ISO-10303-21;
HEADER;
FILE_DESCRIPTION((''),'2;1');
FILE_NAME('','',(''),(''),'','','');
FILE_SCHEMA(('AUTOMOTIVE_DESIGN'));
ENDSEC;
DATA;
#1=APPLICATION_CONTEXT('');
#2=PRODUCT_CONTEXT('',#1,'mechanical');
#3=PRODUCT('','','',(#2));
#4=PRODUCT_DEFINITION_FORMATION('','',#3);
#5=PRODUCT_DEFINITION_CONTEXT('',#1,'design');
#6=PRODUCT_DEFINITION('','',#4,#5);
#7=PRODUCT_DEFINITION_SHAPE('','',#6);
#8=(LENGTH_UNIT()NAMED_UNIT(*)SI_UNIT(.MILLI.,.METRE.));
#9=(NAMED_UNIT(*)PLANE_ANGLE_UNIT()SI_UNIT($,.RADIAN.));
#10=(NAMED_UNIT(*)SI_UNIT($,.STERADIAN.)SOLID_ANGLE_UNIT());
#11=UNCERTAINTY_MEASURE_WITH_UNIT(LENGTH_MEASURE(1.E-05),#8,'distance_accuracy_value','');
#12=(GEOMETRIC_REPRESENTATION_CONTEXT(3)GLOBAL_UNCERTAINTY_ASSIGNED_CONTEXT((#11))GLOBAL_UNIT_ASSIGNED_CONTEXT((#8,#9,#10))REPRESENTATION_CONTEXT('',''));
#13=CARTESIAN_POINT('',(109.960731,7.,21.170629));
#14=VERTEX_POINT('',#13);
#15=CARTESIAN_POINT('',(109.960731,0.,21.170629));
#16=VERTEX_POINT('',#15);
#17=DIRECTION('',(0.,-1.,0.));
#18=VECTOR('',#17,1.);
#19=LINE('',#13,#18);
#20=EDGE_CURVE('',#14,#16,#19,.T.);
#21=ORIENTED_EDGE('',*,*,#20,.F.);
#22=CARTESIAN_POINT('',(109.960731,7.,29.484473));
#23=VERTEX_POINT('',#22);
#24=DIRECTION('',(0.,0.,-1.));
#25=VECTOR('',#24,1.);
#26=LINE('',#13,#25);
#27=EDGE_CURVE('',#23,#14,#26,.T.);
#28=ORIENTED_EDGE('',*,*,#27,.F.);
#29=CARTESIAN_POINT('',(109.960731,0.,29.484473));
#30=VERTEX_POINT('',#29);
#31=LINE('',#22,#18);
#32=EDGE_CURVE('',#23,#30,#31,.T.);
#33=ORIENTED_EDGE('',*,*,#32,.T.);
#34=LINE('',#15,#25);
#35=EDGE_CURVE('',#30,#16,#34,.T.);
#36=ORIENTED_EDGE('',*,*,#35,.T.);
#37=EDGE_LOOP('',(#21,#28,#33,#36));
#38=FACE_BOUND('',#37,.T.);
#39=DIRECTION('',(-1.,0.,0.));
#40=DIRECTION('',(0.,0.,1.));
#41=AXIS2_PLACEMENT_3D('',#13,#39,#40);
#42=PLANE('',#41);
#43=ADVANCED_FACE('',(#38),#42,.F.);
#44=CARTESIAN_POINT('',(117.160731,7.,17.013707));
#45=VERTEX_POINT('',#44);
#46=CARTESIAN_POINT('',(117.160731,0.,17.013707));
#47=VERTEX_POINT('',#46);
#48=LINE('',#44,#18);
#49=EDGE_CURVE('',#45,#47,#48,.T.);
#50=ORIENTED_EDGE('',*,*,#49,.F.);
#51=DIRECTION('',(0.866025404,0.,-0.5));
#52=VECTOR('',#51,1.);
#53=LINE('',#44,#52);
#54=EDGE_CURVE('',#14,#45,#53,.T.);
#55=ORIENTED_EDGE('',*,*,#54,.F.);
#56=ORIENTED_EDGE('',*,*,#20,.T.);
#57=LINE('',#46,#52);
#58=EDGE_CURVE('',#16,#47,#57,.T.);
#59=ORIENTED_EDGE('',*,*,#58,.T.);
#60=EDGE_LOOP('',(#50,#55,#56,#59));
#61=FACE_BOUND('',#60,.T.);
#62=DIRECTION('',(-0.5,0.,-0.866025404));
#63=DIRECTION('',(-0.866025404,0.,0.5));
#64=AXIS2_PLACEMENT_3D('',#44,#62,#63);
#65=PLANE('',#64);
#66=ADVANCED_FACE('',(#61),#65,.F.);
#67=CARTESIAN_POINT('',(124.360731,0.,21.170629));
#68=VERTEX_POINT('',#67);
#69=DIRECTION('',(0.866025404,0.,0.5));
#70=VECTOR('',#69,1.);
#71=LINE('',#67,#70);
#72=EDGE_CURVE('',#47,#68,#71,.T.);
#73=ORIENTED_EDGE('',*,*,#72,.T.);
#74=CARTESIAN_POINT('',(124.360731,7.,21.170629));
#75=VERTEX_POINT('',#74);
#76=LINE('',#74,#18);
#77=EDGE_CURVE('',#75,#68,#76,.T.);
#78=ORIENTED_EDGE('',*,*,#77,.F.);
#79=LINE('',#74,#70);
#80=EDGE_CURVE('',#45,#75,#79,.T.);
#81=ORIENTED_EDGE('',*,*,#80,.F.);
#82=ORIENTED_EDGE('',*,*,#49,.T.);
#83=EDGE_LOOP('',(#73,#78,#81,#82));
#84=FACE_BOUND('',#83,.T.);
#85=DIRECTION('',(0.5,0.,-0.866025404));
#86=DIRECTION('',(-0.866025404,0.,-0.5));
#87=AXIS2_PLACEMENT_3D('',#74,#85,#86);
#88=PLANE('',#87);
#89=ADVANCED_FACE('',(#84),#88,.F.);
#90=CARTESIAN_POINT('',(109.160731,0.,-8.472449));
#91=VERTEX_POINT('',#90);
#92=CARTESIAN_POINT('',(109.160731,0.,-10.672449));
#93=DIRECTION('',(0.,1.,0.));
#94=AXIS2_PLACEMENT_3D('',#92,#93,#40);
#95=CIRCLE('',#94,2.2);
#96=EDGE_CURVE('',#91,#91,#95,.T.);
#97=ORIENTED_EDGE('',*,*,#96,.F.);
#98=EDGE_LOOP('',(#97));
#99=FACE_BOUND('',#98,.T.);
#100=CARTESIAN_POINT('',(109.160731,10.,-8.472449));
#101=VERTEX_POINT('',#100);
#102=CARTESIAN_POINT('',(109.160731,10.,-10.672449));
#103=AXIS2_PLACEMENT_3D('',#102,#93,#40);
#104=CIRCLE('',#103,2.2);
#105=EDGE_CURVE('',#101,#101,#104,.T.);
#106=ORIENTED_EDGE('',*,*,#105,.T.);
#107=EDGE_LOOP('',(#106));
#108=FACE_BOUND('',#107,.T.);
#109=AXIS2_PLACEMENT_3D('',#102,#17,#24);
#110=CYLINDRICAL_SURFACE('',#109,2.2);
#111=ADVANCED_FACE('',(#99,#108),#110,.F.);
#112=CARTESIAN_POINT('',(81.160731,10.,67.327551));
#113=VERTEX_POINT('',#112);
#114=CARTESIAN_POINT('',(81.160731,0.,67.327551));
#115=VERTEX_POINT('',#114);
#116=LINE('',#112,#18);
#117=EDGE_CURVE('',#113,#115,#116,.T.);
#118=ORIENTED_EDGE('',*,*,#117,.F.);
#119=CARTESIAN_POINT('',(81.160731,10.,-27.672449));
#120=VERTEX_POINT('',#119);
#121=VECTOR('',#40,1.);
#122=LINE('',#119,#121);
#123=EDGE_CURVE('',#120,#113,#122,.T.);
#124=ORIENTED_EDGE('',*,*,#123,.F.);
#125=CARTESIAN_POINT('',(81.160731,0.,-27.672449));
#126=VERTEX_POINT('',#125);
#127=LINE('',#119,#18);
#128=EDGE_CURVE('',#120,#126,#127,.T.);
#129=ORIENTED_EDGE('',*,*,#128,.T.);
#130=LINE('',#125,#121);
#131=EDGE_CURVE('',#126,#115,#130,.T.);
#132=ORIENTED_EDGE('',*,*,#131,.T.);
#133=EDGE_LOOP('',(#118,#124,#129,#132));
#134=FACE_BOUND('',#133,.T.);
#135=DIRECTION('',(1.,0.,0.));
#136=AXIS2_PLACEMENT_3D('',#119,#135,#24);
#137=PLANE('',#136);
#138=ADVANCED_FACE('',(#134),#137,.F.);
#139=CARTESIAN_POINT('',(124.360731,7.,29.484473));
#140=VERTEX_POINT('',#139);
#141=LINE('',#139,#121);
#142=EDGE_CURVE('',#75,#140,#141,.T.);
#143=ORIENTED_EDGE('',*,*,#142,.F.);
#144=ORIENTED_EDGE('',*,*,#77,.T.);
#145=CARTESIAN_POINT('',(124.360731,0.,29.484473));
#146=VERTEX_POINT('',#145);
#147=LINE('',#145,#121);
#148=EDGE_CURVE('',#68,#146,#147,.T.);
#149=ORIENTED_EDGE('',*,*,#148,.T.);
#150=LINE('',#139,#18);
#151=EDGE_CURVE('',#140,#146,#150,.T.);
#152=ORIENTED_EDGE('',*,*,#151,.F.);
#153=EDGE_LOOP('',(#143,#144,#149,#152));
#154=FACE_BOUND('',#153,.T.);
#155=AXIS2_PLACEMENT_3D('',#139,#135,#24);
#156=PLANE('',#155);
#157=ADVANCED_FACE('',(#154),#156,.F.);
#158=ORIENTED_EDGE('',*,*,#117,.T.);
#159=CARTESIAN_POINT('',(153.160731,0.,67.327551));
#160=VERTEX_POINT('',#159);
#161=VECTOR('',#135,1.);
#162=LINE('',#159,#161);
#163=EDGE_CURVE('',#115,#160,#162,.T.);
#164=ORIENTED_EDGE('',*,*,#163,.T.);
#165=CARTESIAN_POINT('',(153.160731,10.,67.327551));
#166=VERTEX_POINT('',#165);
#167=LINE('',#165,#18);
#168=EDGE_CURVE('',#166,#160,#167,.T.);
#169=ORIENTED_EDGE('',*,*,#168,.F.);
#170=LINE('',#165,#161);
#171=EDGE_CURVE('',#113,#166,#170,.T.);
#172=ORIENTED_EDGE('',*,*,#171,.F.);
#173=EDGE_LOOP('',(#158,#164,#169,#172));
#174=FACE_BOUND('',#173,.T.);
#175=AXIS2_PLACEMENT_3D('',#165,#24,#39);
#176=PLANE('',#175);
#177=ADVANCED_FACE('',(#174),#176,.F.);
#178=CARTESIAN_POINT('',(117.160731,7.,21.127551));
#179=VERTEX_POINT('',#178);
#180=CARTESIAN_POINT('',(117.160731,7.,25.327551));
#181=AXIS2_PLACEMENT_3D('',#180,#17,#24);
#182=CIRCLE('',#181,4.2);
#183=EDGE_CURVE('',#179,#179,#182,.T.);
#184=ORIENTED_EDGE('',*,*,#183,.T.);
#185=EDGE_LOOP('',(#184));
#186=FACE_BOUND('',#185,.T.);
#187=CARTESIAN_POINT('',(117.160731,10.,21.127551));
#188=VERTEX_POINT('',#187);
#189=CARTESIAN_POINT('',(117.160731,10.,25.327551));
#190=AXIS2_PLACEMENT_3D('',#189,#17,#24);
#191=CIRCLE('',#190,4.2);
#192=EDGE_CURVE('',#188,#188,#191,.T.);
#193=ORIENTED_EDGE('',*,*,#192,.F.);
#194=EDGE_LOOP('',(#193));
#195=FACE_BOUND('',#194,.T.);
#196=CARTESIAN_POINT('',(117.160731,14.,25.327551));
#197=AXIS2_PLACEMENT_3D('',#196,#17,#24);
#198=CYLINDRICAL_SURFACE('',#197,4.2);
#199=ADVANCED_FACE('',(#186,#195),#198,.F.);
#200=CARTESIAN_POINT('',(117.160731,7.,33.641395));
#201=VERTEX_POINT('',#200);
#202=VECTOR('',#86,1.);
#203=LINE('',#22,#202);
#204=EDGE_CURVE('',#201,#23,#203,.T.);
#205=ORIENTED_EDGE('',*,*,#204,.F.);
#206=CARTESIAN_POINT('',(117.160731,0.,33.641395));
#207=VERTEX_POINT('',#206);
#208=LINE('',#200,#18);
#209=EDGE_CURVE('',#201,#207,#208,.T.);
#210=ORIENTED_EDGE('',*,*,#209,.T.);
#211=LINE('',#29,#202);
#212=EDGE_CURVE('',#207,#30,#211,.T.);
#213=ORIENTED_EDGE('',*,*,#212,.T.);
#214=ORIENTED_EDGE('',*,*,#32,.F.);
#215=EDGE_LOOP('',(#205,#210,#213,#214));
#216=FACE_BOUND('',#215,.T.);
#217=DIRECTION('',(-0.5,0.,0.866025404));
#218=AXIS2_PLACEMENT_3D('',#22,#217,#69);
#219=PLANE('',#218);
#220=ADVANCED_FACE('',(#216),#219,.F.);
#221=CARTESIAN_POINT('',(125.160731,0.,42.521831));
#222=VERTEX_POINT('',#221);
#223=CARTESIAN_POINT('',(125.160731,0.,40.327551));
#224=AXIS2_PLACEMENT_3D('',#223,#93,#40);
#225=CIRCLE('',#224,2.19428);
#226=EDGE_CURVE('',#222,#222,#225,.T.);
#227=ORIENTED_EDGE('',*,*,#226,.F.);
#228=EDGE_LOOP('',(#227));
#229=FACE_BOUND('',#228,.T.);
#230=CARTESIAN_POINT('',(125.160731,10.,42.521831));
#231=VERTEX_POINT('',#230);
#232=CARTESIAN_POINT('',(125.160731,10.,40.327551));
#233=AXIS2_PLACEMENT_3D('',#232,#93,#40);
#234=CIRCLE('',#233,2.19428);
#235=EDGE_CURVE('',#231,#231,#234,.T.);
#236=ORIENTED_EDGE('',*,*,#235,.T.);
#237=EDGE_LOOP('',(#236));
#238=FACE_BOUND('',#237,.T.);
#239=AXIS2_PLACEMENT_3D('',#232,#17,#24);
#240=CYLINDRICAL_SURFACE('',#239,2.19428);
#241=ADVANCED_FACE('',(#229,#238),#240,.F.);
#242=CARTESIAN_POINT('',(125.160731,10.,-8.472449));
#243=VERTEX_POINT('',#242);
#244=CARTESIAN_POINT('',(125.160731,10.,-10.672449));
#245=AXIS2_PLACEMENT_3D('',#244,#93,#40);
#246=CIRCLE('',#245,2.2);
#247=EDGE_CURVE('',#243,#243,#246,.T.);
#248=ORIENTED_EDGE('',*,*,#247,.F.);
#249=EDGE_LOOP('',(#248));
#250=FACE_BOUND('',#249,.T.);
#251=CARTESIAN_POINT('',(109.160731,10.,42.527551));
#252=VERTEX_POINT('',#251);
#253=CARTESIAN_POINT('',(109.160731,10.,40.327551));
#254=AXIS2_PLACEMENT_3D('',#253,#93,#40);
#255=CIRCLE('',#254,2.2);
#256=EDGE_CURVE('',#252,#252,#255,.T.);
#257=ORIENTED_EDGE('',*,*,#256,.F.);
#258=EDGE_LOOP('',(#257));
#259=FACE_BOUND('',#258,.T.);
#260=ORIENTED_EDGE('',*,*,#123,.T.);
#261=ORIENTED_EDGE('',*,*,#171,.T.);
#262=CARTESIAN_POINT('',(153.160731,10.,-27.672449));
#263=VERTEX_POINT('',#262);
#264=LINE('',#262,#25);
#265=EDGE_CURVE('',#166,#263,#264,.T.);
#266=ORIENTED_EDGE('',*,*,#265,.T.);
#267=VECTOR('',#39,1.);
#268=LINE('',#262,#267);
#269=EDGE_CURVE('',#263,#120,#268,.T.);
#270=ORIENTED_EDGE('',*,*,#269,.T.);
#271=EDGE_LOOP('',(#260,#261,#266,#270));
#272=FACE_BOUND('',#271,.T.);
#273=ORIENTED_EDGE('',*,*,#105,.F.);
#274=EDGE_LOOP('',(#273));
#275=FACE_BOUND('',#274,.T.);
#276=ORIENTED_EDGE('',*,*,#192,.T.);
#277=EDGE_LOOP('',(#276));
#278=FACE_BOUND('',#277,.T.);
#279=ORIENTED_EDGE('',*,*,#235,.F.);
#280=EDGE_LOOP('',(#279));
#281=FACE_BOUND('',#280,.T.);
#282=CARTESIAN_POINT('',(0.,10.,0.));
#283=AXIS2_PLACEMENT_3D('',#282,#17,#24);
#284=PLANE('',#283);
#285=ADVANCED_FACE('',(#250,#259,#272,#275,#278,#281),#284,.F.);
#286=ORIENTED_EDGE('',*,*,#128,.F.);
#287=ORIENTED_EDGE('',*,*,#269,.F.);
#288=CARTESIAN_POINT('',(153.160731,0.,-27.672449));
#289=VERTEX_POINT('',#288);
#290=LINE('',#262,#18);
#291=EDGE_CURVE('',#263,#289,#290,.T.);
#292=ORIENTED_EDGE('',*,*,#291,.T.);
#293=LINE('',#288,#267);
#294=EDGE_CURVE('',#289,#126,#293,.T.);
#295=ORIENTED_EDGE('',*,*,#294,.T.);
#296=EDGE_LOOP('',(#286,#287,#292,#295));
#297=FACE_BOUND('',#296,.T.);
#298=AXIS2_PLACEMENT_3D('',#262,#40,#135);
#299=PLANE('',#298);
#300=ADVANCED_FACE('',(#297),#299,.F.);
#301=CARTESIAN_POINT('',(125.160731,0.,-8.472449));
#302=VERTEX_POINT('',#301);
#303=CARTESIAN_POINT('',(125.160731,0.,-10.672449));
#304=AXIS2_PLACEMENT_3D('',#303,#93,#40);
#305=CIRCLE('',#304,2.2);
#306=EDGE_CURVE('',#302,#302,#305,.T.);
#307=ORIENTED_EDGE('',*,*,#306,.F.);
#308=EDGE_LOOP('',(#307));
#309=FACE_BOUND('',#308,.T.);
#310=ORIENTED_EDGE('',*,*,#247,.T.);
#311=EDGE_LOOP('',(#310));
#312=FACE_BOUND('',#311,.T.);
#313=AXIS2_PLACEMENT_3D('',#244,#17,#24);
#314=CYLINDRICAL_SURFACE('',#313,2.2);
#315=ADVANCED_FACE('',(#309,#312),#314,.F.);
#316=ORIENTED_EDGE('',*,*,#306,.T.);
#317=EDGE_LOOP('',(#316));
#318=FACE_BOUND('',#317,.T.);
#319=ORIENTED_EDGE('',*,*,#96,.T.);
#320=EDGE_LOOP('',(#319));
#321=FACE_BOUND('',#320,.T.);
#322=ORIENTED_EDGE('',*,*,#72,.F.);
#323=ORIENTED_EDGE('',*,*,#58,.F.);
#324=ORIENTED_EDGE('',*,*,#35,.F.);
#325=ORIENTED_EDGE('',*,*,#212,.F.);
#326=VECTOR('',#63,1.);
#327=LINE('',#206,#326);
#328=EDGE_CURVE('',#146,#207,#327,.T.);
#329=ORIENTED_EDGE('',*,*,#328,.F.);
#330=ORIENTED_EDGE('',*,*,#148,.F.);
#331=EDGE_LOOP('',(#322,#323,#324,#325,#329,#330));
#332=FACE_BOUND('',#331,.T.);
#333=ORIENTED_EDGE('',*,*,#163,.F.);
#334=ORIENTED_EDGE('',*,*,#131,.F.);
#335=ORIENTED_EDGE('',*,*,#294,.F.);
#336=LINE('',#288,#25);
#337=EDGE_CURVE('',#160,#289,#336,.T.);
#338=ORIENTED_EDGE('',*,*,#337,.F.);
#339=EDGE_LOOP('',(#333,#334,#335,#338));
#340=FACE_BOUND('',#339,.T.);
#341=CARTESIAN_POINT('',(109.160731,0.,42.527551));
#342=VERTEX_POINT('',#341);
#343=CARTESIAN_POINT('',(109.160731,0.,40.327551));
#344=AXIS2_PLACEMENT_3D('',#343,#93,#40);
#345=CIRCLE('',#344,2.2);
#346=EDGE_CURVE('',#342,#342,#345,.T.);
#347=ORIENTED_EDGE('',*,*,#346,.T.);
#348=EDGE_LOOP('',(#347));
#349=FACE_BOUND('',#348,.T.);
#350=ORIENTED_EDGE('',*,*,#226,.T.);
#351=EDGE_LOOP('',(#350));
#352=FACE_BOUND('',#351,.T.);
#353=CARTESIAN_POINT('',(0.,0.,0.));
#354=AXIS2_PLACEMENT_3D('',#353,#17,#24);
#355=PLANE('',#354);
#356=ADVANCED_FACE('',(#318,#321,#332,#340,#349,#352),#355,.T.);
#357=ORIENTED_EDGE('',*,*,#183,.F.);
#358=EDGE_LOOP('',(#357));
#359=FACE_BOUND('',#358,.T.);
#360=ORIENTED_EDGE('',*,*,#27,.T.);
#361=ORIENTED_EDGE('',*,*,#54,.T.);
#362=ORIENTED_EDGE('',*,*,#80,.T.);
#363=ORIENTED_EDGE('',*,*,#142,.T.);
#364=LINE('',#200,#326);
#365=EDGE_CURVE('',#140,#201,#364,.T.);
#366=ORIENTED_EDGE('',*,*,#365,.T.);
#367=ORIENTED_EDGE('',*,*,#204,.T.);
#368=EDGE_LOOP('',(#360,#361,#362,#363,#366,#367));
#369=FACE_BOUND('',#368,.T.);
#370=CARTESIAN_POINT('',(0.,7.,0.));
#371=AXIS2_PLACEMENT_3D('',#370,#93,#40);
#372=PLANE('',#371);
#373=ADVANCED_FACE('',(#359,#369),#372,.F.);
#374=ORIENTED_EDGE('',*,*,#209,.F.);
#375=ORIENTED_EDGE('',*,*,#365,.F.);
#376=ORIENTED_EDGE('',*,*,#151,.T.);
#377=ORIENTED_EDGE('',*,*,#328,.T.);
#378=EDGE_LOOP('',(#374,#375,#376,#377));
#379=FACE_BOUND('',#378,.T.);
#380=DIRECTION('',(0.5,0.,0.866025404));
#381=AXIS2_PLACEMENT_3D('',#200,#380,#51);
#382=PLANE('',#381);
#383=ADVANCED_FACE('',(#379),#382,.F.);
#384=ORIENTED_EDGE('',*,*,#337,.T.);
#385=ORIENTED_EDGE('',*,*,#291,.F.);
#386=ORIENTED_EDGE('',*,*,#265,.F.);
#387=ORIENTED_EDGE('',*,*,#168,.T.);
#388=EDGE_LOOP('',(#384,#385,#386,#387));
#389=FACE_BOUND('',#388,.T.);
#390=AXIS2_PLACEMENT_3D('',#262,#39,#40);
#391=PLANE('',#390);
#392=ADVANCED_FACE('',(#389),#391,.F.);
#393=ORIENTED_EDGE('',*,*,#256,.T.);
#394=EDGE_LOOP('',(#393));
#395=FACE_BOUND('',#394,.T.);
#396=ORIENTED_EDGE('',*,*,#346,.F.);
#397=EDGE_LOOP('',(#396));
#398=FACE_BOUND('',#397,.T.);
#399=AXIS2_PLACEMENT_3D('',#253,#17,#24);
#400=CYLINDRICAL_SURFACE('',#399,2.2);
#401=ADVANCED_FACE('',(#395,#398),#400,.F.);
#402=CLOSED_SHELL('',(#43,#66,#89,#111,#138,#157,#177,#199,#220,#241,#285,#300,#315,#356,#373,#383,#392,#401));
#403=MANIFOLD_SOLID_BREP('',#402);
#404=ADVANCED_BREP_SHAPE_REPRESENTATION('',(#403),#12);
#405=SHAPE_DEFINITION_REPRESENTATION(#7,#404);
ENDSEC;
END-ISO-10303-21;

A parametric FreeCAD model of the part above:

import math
import FreeCAD as App
import Part
import Sketcher
from FreeCAD import Vector
Q = App.Units.Quantity


def add_polygon(sketch, points):
    """Adds a closed chain of lines whose ends are joined by coincident constraints."""
    first, n = sketch.GeometryCount, len(points)
    for a, b in zip(points, points[1:] + points[:1]):
        sketch.addGeometry(Part.LineSegment(App.Vector(*a, 0), App.Vector(*b, 0)), False)
    for i in range(n):
        sketch.addConstraint(Sketcher.Constraint("Coincident", first + i, 2, first + (i + 1) % n, 1))

doc = App.newDocument("Part")
params = doc.addObject("Spreadsheet::Sheet", "Params")
for row, (alias, value) in enumerate([
    ("sketch1_diameter", "4.4 mm"),
    ("sketch1_width", "72 mm"),
    ("sketch1_height", "95 mm"),
    ("pad1_length", "10 mm"),
    ("pocket1_length", "7 mm"),
    ("sketch3_radius", "4.2 mm"),
    ("pocket2_length", "7 mm"),
], start=1):
    params.set(f"A{row}", alias)
    params.set(f"B{row}", "=" + value)
    params.setAlias(f"B{row}", alias)

body = doc.addObject("PartDesign::Body", "Body")

sketch1 = body.newObject("Sketcher::SketchObject", "Sketch")
sketch1.AttachmentSupport = (doc.getObject("XZ_Plane"), [""])
sketch1.MapMode = "FlatFace"
add_polygon(sketch1, [(81.2, -27.7), (81.2, 67.3), (153.2, 67.3), (153.2, -27.7)])
sketch1.addGeometry(Part.Circle(Vector(109.2, 40.3, 0), Vector(0, 0, 1), 2.2), False)
sketch1.addGeometry(Part.Circle(Vector(125.2, 40.3, 0), Vector(0, 0, 1), 2.2), False)
sketch1.addGeometry(Part.Circle(Vector(109.2, -10.7, 0), Vector(0, 0, 1), 2.2), False)
sketch1.addGeometry(Part.Circle(Vector(125.2, -10.7, 0), Vector(0, 0, 1), 2.2), False)
sketch1.addConstraint(Sketcher.Constraint("Vertical", 0))
sketch1.addConstraint(Sketcher.Constraint("Horizontal", 1))
sketch1.addConstraint(Sketcher.Constraint("Vertical", 2))
sketch1.addConstraint(Sketcher.Constraint("Horizontal", 3))
sketch1.addConstraint(Sketcher.Constraint("Equal", 4, 6))
sketch1.addConstraint(Sketcher.Constraint("Equal", 6, 7))
sketch1.addConstraint(Sketcher.Constraint("Horizontal", 4, 3, 5, 3))
sketch1.addConstraint(Sketcher.Constraint("Horizontal", 6, 3, 7, 3))
sketch1.addConstraint(Sketcher.Constraint("Vertical", 4, 3, 6, 3))
sketch1.addConstraint(Sketcher.Constraint("Vertical", 5, 3, 7, 3))
sketch1.addConstraint(Sketcher.Constraint("Diameter", 4, Q("4.4 mm")))
sketch1.addConstraint(Sketcher.Constraint("DistanceX", 1, 1, 1, 2, Q("72 mm")))
sketch1.addConstraint(Sketcher.Constraint("DistanceY", 0, 1, 0, 2, Q("95 mm")))
sketch1.addConstraint(Sketcher.Constraint("DistanceX", 4, 3, 5, 3, Q("16 mm")))
sketch1.addConstraint(Sketcher.Constraint("DistanceY", 6, 3, 4, 3, Q("51 mm")))
sketch1.addConstraint(Sketcher.Constraint("DistanceX", 0, 2, 4, 3, Q("28 mm")))
sketch1.addConstraint(Sketcher.Constraint("DistanceY", 4, 3, 0, 2, Q("27 mm")))
sketch1.addConstraint(Sketcher.Constraint("Diameter", 5, Q("4.38856 mm")))
sketch1.addConstraint(Sketcher.Constraint("DistanceX", -1, 1, 4, 3, Q("109.160731 mm")))
sketch1.addConstraint(Sketcher.Constraint("DistanceY", -1, 1, 4, 3, Q("40.327551 mm")))
sketch1.setExpression("Constraints[14]", "Params.sketch1_diameter")
sketch1.setExpression("Constraints[15]", "Params.sketch1_width")
sketch1.setExpression("Constraints[16]", "Params.sketch1_height")
pad1 = body.newObject("PartDesign::Pad", "Pad")
pad1.Profile = sketch1
pad1.setExpression("Length", "Params.pad1_length")
pad1.Reversed = True

sketch2 = body.newObject("Sketcher::SketchObject", "Sketch001")
sketch2.AttachmentSupport = (doc.getObject("XZ_Plane"), [""])
sketch2.MapMode = "FlatFace"
add_polygon(sketch2, [(110, 29), (110, 21), (117, 17), (124, 21), (124, 29), (117, 34)])
sketch2.addConstraint(Sketcher.Constraint("Vertical", 0))
sketch2.addConstraint(Sketcher.Constraint("Vertical", 3))
sketch2.addConstraint(Sketcher.Constraint("Parallel", 1, 4))
sketch2.addConstraint(Sketcher.Constraint("Parallel", 2, 5))
sketch2.addConstraint(Sketcher.Constraint("Horizontal", 0, 2, 2, 2))
sketch2.addConstraint(Sketcher.Constraint("Horizontal", 3, 2, 5, 2))
sketch2.addConstraint(Sketcher.Constraint("Vertical", 1, 2, 4, 2))
sketch2.addConstraint(Sketcher.Constraint("Angle", 1, Q("-30 deg")))
sketch2.addConstraint(Sketcher.Constraint("DistanceX", 0, 2, 1, 2, Q("7.2 mm")))
sketch2.addConstraint(Sketcher.Constraint("DistanceY", 0, 2, 0, 1, Q("8.313844 mm")))
sketch2.addConstraint(Sketcher.Constraint("DistanceX", -1, 1, 0, 2, Q("109.960731 mm")))
sketch2.addConstraint(Sketcher.Constraint("DistanceY", -1, 1, 0, 2, Q("21.170629 mm")))
pocket1 = body.newObject("PartDesign::Pocket", "Pocket")
pocket1.Profile = sketch2
pocket1.setExpression("Length", "Params.pocket1_length")

sketch3 = body.newObject("Sketcher::SketchObject", "Sketch002")
sketch3.AttachmentSupport = (doc.getObject("XZ_Plane"), [""])
sketch3.MapMode = "FlatFace"
sketch3.AttachmentOffset = App.Placement(Vector(0, 0, -7), App.Rotation())
sketch3.addGeometry(Part.ArcOfCircle(Part.Circle(Vector(117.2, 25.3, 0), Vector(0, 0, 1), 4.2), math.radians(0), math.radians(90)), False)
sketch3.addGeometry(Part.ArcOfCircle(Part.Circle(Vector(117.2, 25.3, 0), Vector(0, 0, 1), 4.2), math.radians(90), math.radians(270)), False)
sketch3.addGeometry(Part.ArcOfCircle(Part.Circle(Vector(117.2, 25.3, 0), Vector(0, 0, 1), 4.2), math.radians(-90), math.radians(0)), False)
sketch3.addConstraint(Sketcher.Constraint("Tangent", 0, 2, 1, 1))
sketch3.addConstraint(Sketcher.Constraint("Tangent", 1, 2, 2, 1))
sketch3.addConstraint(Sketcher.Constraint("Tangent", 2, 2, 0, 1))
sketch3.addConstraint(Sketcher.Constraint("Horizontal", 1, 3, 2, 2))
sketch3.addConstraint(Sketcher.Constraint("Vertical", 2, 3, 0, 2))
sketch3.addConstraint(Sketcher.Constraint("Vertical", 0, 2, 1, 2))
sketch3.addConstraint(Sketcher.Constraint("Radius", 0, Q("4.2 mm")))
sketch3.addConstraint(Sketcher.Constraint("DistanceX", -1, 1, 0, 3, Q("117.160731 mm")))
sketch3.addConstraint(Sketcher.Constraint("DistanceY", -1, 1, 0, 3, Q("25.327551 mm")))
sketch3.setExpression("Constraints[6]", "Params.sketch3_radius")
pocket2 = body.newObject("PartDesign::Pocket", "Pocket001")
pocket2.Profile = sketch3
pocket2.setExpression("Length", "Params.pocket2_length")

doc.recompute()
